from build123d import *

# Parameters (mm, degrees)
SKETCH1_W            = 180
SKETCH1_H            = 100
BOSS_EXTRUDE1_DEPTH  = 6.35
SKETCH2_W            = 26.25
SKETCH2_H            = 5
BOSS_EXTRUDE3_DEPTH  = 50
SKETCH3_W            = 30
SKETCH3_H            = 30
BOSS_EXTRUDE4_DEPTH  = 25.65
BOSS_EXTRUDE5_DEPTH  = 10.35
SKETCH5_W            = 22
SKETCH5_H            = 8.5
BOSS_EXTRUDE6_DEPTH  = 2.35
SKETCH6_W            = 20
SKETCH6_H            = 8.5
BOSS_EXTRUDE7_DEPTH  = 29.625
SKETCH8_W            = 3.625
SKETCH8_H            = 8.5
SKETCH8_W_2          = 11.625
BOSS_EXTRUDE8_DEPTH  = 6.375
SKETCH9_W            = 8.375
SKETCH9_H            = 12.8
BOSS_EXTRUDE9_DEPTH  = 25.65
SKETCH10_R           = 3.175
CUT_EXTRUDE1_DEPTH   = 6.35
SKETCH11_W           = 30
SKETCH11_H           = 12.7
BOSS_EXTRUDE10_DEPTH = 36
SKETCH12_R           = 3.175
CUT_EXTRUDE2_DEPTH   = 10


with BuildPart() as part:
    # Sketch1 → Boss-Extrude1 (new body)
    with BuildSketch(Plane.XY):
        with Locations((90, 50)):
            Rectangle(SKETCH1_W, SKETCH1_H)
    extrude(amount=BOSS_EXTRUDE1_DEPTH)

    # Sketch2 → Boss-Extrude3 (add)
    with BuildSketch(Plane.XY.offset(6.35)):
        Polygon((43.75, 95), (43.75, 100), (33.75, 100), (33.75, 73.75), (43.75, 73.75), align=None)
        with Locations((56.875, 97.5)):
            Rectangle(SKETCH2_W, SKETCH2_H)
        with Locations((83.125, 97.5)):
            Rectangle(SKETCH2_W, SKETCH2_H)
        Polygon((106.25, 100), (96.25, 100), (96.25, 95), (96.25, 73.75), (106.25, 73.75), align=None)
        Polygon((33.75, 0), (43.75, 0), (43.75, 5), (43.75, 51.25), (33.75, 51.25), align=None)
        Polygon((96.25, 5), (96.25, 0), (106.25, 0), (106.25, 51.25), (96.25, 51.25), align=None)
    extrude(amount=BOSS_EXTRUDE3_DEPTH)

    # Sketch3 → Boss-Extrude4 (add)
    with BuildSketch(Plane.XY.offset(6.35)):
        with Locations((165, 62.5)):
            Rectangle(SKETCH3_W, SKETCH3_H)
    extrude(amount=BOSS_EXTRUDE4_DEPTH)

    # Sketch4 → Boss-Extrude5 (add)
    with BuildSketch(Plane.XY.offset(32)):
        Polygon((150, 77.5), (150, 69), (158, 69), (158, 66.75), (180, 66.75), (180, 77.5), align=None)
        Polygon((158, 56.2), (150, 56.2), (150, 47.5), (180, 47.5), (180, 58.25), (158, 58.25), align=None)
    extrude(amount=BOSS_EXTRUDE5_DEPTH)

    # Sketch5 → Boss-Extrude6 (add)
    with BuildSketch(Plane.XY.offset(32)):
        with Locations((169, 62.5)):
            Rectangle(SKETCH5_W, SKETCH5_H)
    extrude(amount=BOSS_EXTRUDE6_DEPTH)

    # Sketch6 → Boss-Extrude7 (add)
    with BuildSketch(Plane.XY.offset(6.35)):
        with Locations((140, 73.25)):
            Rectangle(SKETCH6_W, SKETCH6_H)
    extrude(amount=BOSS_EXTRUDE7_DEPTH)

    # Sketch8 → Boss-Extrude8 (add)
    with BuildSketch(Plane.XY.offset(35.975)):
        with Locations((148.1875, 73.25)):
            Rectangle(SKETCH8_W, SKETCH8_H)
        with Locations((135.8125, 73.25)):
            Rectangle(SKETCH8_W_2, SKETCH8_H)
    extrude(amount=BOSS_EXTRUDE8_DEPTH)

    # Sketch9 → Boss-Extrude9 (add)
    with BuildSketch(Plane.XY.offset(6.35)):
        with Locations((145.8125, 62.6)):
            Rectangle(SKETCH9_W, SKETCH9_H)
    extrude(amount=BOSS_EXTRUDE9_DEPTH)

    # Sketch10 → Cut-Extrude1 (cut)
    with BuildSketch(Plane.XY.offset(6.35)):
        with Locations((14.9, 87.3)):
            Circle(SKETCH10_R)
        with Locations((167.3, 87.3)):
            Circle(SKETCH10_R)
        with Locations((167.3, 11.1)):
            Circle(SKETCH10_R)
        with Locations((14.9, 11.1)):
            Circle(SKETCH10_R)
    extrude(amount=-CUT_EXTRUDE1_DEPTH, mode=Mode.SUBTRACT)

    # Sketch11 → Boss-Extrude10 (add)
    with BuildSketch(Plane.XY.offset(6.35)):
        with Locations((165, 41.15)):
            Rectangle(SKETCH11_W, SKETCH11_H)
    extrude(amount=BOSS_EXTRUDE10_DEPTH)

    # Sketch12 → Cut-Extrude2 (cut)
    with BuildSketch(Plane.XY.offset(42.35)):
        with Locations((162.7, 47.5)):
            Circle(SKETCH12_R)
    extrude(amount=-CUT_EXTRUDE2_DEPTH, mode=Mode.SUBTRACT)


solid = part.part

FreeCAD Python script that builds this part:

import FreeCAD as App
import Part
import Sketcher
from FreeCAD import Vector

doc = App.newDocument("Part")
body = doc.addObject("PartDesign::Body", "Body")

sketch1 = body.newObject("Sketcher::SketchObject", "Sketch")
sketch1.AttachmentSupport = (doc.getObject("XY_Plane"), [""])
sketch1.MapMode = "FlatFace"
sketch1.addGeometry([
    Part.LineSegment(Vector(0, 100, 0), Vector(0, 0, 0)),
    Part.LineSegment(Vector(0, 0, 0), Vector(180, 0, 0)),
    Part.LineSegment(Vector(180, 0, 0), Vector(180, 100, 0)),
    Part.LineSegment(Vector(180, 100, 0), Vector(0, 100, 0)),
], False)
sketch1.addConstraint([
    Sketcher.Constraint("Coincident", 0, 2, 1, 1),
    Sketcher.Constraint("Coincident", 1, 2, 2, 1),
    Sketcher.Constraint("Coincident", 2, 2, 3, 1),
    Sketcher.Constraint("Coincident", 3, 2, 0, 1),
    Sketcher.Constraint("Vertical", 0),
    Sketcher.Constraint("Horizontal", 1),
    Sketcher.Constraint("Vertical", 2),
    Sketcher.Constraint("Horizontal", 3),
    Sketcher.Constraint("Coincident", 0, 2, -1, 1),
    Sketcher.Constraint("DistanceX", 1, 1, 1, 2, 180.0),
    Sketcher.Constraint("DistanceY", 0, 2, 0, 1, 100.0),
])
pad1 = body.newObject("PartDesign::Pad", "Pad")
pad1.Profile = sketch1
pad1.Length = 6.35

sketch2 = body.newObject("Sketcher::SketchObject", "Sketch001")
sketch2.AttachmentSupport = (doc.getObject("XY_Plane"), [""])
sketch2.MapMode = "FlatFace"
sketch2.AttachmentOffset = App.Placement(Vector(0, 0, 6.35), App.Rotation())
sketch2.addGeometry([
    Part.LineSegment(Vector(33.75, 100, 0), Vector(33.75, 73.75, 0)),
    Part.LineSegment(Vector(33.75, 73.75, 0), Vector(43.75, 73.75, 0)),
    Part.LineSegment(Vector(43.75, 73.75, 0), Vector(43.75, 95, 0)),
    Part.LineSegment(Vector(43.75, 95, 0), Vector(96.25, 95, 0)),
    Part.LineSegment(Vector(96.25, 95, 0), Vector(96.25, 73.75, 0)),
    Part.LineSegment(Vector(96.25, 73.75, 0), Vector(106.25, 73.75, 0)),
    Part.LineSegment(Vector(106.25, 73.75, 0), Vector(106.25, 100, 0)),
    Part.LineSegment(Vector(106.25, 100, 0), Vector(33.75, 100, 0)),
    Part.LineSegment(Vector(33.75, 0, 0), Vector(43.75, 0, 0)),
    Part.LineSegment(Vector(43.75, 0, 0), Vector(43.75, 51.25, 0)),
    Part.LineSegment(Vector(43.75, 51.25, 0), Vector(33.75, 51.25, 0)),
    Part.LineSegment(Vector(33.75, 51.25, 0), Vector(33.75, 0, 0)),
    Part.LineSegment(Vector(96.25, 0, 0), Vector(106.25, 0, 0)),
    Part.LineSegment(Vector(106.25, 0, 0), Vector(106.25, 51.25, 0)),
    Part.LineSegment(Vector(106.25, 51.25, 0), Vector(96.25, 51.25, 0)),
    Part.LineSegment(Vector(96.25, 51.25, 0), Vector(96.25, 0, 0)),
], False)
sketch2.addConstraint([
    Sketcher.Constraint("Coincident", 0, 2, 1, 1),
    Sketcher.Constraint("Coincident", 1, 2, 2, 1),
    Sketcher.Constraint("Coincident", 2, 2, 3, 1),
    Sketcher.Constraint("Coincident", 3, 2, 4, 1),
    Sketcher.Constraint("Coincident", 4, 2, 5, 1),
    Sketcher.Constraint("Coincident", 5, 2, 6, 1),
    Sketcher.Constraint("Coincident", 6, 2, 7, 1),
    Sketcher.Constraint("Coincident", 7, 2, 0, 1),
    Sketcher.Constraint("Coincident", 8, 2, 9, 1),
    Sketcher.Constraint("Coincident", 9, 2, 10, 1),
    Sketcher.Constraint("Coincident", 10, 2, 11, 1),
    Sketcher.Constraint("Coincident", 11, 2, 8, 1),
    Sketcher.Constraint("Coincident", 12, 2, 13, 1),
    Sketcher.Constraint("Coincident", 13, 2, 14, 1),
    Sketcher.Constraint("Coincident", 14, 2, 15, 1),
    Sketcher.Constraint("Coincident", 15, 2, 12, 1),
    Sketcher.Constraint("Vertical", 0),
    Sketcher.Constraint("Horizontal", 1),
    Sketcher.Constraint("Vertical", 2),
    Sketcher.Constraint("Horizontal", 3),
    Sketcher.Constraint("Vertical", 4),
    Sketcher.Constraint("Horizontal", 5),
    Sketcher.Constraint("Vertical", 6),
    Sketcher.Constraint("Horizontal", 7),
    Sketcher.Constraint("Horizontal", 8),
    Sketcher.Constraint("Vertical", 9),
    Sketcher.Constraint("Horizontal", 10),
    Sketcher.Constraint("Vertical", 11),
    Sketcher.Constraint("Horizontal", 12),
    Sketcher.Constraint("Vertical", 13),
    Sketcher.Constraint("Horizontal", 14),
    Sketcher.Constraint("Vertical", 15),
    Sketcher.Constraint("PointOnObject", 8, 2, -1),
    Sketcher.Constraint("PointOnObject", 12, 2, -1),
    Sketcher.Constraint("Horizontal", 1, 2, 4, 2),
    Sketcher.Constraint("Horizontal", 10, 2, 13, 2),
    Sketcher.Constraint("Vertical", 2, 2, 8, 2),
    Sketcher.Constraint("Vertical", 7, 2, 10, 2),
    Sketcher.Constraint("Vertical", 6, 2, 12, 2),
    Sketcher.Constraint("Vertical", 4, 2, 14, 2),
    Sketcher.Constraint("Equal", 1, 5),
    Sketcher.Constraint("DistanceX", 1, 1, 1, 2, 10.0),
    Sketcher.Constraint("DistanceX", 3, 1, 3, 2, 52.5),
    Sketcher.Constraint("DistanceY", -1, 1, 2, 2, 95.0),
    Sketcher.Constraint("DistanceY", -1, 1, 6, 2, 100.0),
    Sketcher.Constraint("DistanceY", 0, 2, 0, 1, 26.25),
    Sketcher.Constraint("DistanceY", 9, 1, 9, 2, 51.25),
    Sketcher.Constraint("DistanceX", -1, 1, 0, 2, 33.75),
])
pad2 = body.newObject("PartDesign::Pad", "Pad001")
pad2.Profile = sketch2
pad2.Length = 50

sketch3 = body.newObject("Sketcher::SketchObject", "Sketch002")
sketch3.AttachmentSupport = (doc.getObject("XY_Plane"), [""])
sketch3.MapMode = "FlatFace"
sketch3.AttachmentOffset = App.Placement(Vector(0, 0, 6.35), App.Rotation())
sketch3.addGeometry([
    Part.LineSegment(Vector(150, 77.5, 0), Vector(150, 47.5, 0)),
    Part.LineSegment(Vector(150, 47.5, 0), Vector(180, 47.5, 0)),
    Part.LineSegment(Vector(180, 47.5, 0), Vector(180, 77.5, 0)),
    Part.LineSegment(Vector(180, 77.5, 0), Vector(150, 77.5, 0)),
], False)
sketch3.addConstraint([
    Sketcher.Constraint("Coincident", 0, 2, 1, 1),
    Sketcher.Constraint("Coincident", 1, 2, 2, 1),
    Sketcher.Constraint("Coincident", 2, 2, 3, 1),
    Sketcher.Constraint("Coincident", 3, 2, 0, 1),
    Sketcher.Constraint("Vertical", 0),
    Sketcher.Constraint("Horizontal", 1),
    Sketcher.Constraint("Vertical", 2),
    Sketcher.Constraint("Horizontal", 3),
    Sketcher.Constraint("Equal", 3, 0),
    Sketcher.Constraint("DistanceX", 1, 1, 1, 2, 30.0),
    Sketcher.Constraint("DistanceX", -1, 1, 0, 2, 150.0),
    Sketcher.Constraint("DistanceY", -1, 1, 0, 2, 47.5),
])
pad3 = body.newObject("PartDesign::Pad", "Pad002")
pad3.Profile = sketch3
pad3.Length = 25.65

sketch4 = body.newObject("Sketcher::SketchObject", "Sketch003")
sketch4.AttachmentSupport = (doc.getObject("XY_Plane"), [""])
sketch4.MapMode = "FlatFace"
sketch4.AttachmentOffset = App.Placement(Vector(0, 0, 32), App.Rotation())
sketch4.addGeometry([
    Part.LineSegment(Vector(150, 77.5, 0), Vector(150, 69, 0)),
    Part.LineSegment(Vector(150, 69, 0), Vector(158, 69, 0)),
    Part.LineSegment(Vector(158, 69, 0), Vector(158, 66.75, 0)),
    Part.LineSegment(Vector(158, 66.75, 0), Vector(180, 66.75, 0)),
    Part.LineSegment(Vector(180, 66.75, 0), Vector(180, 77.5, 0)),
    Part.LineSegment(Vector(180, 77.5, 0), Vector(150, 77.5, 0)),
    Part.LineSegment(Vector(158, 56.2, 0), Vector(150, 56.2, 0)),
    Part.LineSegment(Vector(150, 56.2, 0), Vector(150, 47.5, 0)),
    Part.LineSegment(Vector(150, 47.5, 0), Vector(180, 47.5, 0)),
    Part.LineSegment(Vector(180, 47.5, 0), Vector(180, 58.25, 0)),
    Part.LineSegment(Vector(180, 58.25, 0), Vector(158, 58.25, 0)),
    Part.LineSegment(Vector(158, 58.25, 0), Vector(158, 56.2, 0)),
], False)
sketch4.addConstraint([
    Sketcher.Constraint("Coincident", 0, 2, 1, 1),
    Sketcher.Constraint("Coincident", 1, 2, 2, 1),
    Sketcher.Constraint("Coincident", 2, 2, 3, 1),
    Sketcher.Constraint("Coincident", 3, 2, 4, 1),
    Sketcher.Constraint("Coincident", 4, 2, 5, 1),
    Sketcher.Constraint("Coincident", 5, 2, 0, 1),
    Sketcher.Constraint("Coincident", 6, 2, 7, 1),
    Sketcher.Constraint("Coincident", 7, 2, 8, 1),
    Sketcher.Constraint("Coincident", 8, 2, 9, 1),
    Sketcher.Constraint("Coincident", 9, 2, 10, 1),
    Sketcher.Constraint("Coincident", 10, 2, 11, 1),
    Sketcher.Constraint("Coincident", 11, 2, 6, 1),
    Sketcher.Constraint("Vertical", 0),
    Sketcher.Constraint("Horizontal", 1),
    Sketcher.Constraint("Vertical", 2),
    Sketcher.Constraint("Horizontal", 3),
    Sketcher.Constraint("Vertical", 4),
    Sketcher.Constraint("Horizontal", 5),
    Sketcher.Constraint("Horizontal", 6),
    Sketcher.Constraint("Vertical", 7),
    Sketcher.Constraint("Horizontal", 8),
    Sketcher.Constraint("Vertical", 9),
    Sketcher.Constraint("Horizontal", 10),
    Sketcher.Constraint("Vertical", 11),
    Sketcher.Constraint("Vertical", 5, 2, 6, 2),
    Sketcher.Constraint("Vertical", 4, 2, 8, 2),
    Sketcher.Constraint("Vertical", 2, 2, 10, 2),
    Sketcher.Constraint("Equal", 4, 9),
    Sketcher.Constraint("DistanceX", 1, 1, 1, 2, 8.0),
    Sketcher.Constraint("DistanceX", 3, 1, 3, 2, 22.0),
    Sketcher.Constraint("DistanceY", 0, 2, 0, 1, 8.5),
    Sketcher.Constraint("DistanceY", 7, 2, 7, 1, 8.7),
    Sketcher.Constraint("DistanceX", -1, 1, 0, 2, 150.0),
    Sketcher.Constraint("DistanceY", -1, 1, 0, 2, 69.0),
    Sketcher.Constraint("DistanceY", 7, 2, 5, 2, 30.0),
    Sketcher.Constraint("DistanceY", 2, 2, 2, 1, 2.25),
])
pad4 = body.newObject("PartDesign::Pad", "Pad003")
pad4.Profile = sketch4
pad4.Length = 10.35

sketch5 = body.newObject("Sketcher::SketchObject", "Sketch004")
sketch5.AttachmentSupport = (doc.getObject("XY_Plane"), [""])
sketch5.MapMode = "FlatFace"
sketch5.AttachmentOffset = App.Placement(Vector(0, 0, 32), App.Rotation())
sketch5.addGeometry([
    Part.LineSegment(Vector(158, 66.75, 0), Vector(158, 58.25, 0)),
    Part.LineSegment(Vector(158, 58.25, 0), Vector(180, 58.25, 0)),
    Part.LineSegment(Vector(180, 58.25, 0), Vector(180, 66.75, 0)),
    Part.LineSegment(Vector(180, 66.75, 0), Vector(158, 66.75, 0)),
], False)
sketch5.addConstraint([
    Sketcher.Constraint("Coincident", 0, 2, 1, 1),
    Sketcher.Constraint("Coincident", 1, 2, 2, 1),
    Sketcher.Constraint("Coincident", 2, 2, 3, 1),
    Sketcher.Constraint("Coincident", 3, 2, 0, 1),
    Sketcher.Constraint("Vertical", 0),
    Sketcher.Constraint("Horizontal", 1),
    Sketcher.Constraint("Vertical", 2),
    Sketcher.Constraint("Horizontal", 3),
    Sketcher.Constraint("DistanceX", 1, 1, 1, 2, 22.0),
    Sketcher.Constraint("DistanceY", 0, 2, 0, 1, 8.5),
    Sketcher.Constraint("DistanceX", -1, 1, 0, 2, 158.0),
    Sketcher.Constraint("DistanceY", -1, 1, 0, 2, 58.25),
])
pad5 = body.newObject("PartDesign::Pad", "Pad004")
pad5.Profile = sketch5
pad5.Length = 2.35

sketch6 = body.newObject("Sketcher::SketchObject", "Sketch005")
sketch6.AttachmentSupport = (doc.getObject("XY_Plane"), [""])
sketch6.MapMode = "FlatFace"
sketch6.AttachmentOffset = App.Placement(Vector(0, 0, 6.35), App.Rotation())
sketch6.addGeometry([
    Part.LineSegment(Vector(130, 77.5, 0), Vector(130, 69, 0)),
    Part.LineSegment(Vector(130, 69, 0), Vector(150, 69, 0)),
    Part.LineSegment(Vector(150, 69, 0), Vector(150, 77.5, 0)),
    Part.LineSegment(Vector(150, 77.5, 0), Vector(130, 77.5, 0)),
], False)
sketch6.addConstraint([
    Sketcher.Constraint("Coincident", 0, 2, 1, 1),
    Sketcher.Constraint("Coincident", 1, 2, 2, 1),
    Sketcher.Constraint("Coincident", 2, 2, 3, 1),
    Sketcher.Constraint("Coincident", 3, 2, 0, 1),
    Sketcher.Constraint("Vertical", 0),
    Sketcher.Constraint("Horizontal", 1),
    Sketcher.Constraint("Vertical", 2),
    Sketcher.Constraint("Horizontal", 3),
    Sketcher.Constraint("DistanceX", 1, 1, 1, 2, 20.0),
    Sketcher.Constraint("DistanceY", 0, 2, 0, 1, 8.5),
    Sketcher.Constraint("DistanceX", -1, 1, 0, 2, 130.0),
    Sketcher.Constraint("DistanceY", -1, 1, 0, 2, 69.0),
])
pad6 = body.newObject("PartDesign::Pad", "Pad005")
pad6.Profile = sketch6
pad6.Length = 29.625

sketch7 = body.newObject("Sketcher::SketchObject", "Sketch006")
sketch7.AttachmentSupport = (doc.getObject("XY_Plane"), [""])
sketch7.MapMode = "FlatFace"
sketch7.AttachmentOffset = App.Placement(Vector(0, 0, 35.975), App.Rotation())
sketch7.addGeometry([
    Part.LineSegment(Vector(146.375, 77.5, 0), Vector(146.375, 69, 0)),
    Part.LineSegment(Vector(146.375, 69, 0), Vector(150, 69, 0)),
    Part.LineSegment(Vector(150, 69, 0), Vector(150, 77.5, 0)),
    Part.LineSegment(Vector(150, 77.5, 0), Vector(146.375, 77.5, 0)),
    Part.LineSegment(Vector(130, 77.5, 0), Vector(130, 69, 0)),
    Part.LineSegment(Vector(130, 69, 0), Vector(141.625, 69, 0)),
    Part.LineSegment(Vector(141.625, 69, 0), Vector(141.625, 77.5, 0)),
    Part.LineSegment(Vector(141.625, 77.5, 0), Vector(130, 77.5, 0)),
], False)
sketch7.addConstraint([
    Sketcher.Constraint("Coincident", 0, 2, 1, 1),
    Sketcher.Constraint("Coincident", 1, 2, 2, 1),
    Sketcher.Constraint("Coincident", 2, 2, 3, 1),
    Sketcher.Constraint("Coincident", 3, 2, 0, 1),
    Sketcher.Constraint("Coincident", 4, 2, 5, 1),
    Sketcher.Constraint("Coincident", 5, 2, 6, 1),
    Sketcher.Constraint("Coincident", 6, 2, 7, 1),
    Sketcher.Constraint("Coincident", 7, 2, 4, 1),
    Sketcher.Constraint("Vertical", 0),
    Sketcher.Constraint("Horizontal", 1),
    Sketcher.Constraint("Vertical", 2),
    Sketcher.Constraint("Horizontal", 3),
    Sketcher.Constraint("Vertical", 4),
    Sketcher.Constraint("Horizontal", 5),
    Sketcher.Constraint("Vertical", 6),
    Sketcher.Constraint("Horizontal", 7),
    Sketcher.Constraint("Horizontal", 1, 2, 4, 2),
    Sketcher.Constraint("Horizontal", 3, 2, 6, 2),
    Sketcher.Constraint("DistanceY", 0, 2, 0, 1, 8.5),
    Sketcher.Constraint("DistanceY", -1, 1, 0, 2, 69.0),
    Sketcher.Constraint("DistanceX", -1, 1, 1, 2, 150.0),
    Sketcher.Constraint("DistanceX", -1, 1, 4, 2, 130.0),
    Sketcher.Constraint("DistanceX", 1, 1, 1, 2, 3.625),
    Sketcher.Constraint("DistanceX", 5, 1, 5, 2, 11.625),
])
pad7 = body.newObject("PartDesign::Pad", "Pad006")
pad7.Profile = sketch7
pad7.Length = 6.375

sketch8 = body.newObject("Sketcher::SketchObject", "Sketch007")
sketch8.AttachmentSupport = (doc.getObject("XY_Plane"), [""])
sketch8.MapMode = "FlatFace"
sketch8.AttachmentOffset = App.Placement(Vector(0, 0, 6.35), App.Rotation())
sketch8.addGeometry([
    Part.LineSegment(Vector(141.625, 69, 0), Vector(141.625, 56.2, 0)),
    Part.LineSegment(Vector(141.625, 56.2, 0), Vector(150, 56.2, 0)),
    Part.LineSegment(Vector(150, 56.2, 0), Vector(150, 69, 0)),
    Part.LineSegment(Vector(150, 69, 0), Vector(141.625, 69, 0)),
], False)
sketch8.addConstraint([
    Sketcher.Constraint("Coincident", 0, 2, 1, 1),
    Sketcher.Constraint("Coincident", 1, 2, 2, 1),
    Sketcher.Constraint("Coincident", 2, 2, 3, 1),
    Sketcher.Constraint("Coincident", 3, 2, 0, 1),
    Sketcher.Constraint("Vertical", 0),
    Sketcher.Constraint("Horizontal", 1),
    Sketcher.Constraint("Vertical", 2),
    Sketcher.Constraint("Horizontal", 3),
    Sketcher.Constraint("DistanceY", 0, 2, 0, 1, 12.8),
    Sketcher.Constraint("DistanceX", -1, 1, 1, 2, 150.0),
    Sketcher.Constraint("DistanceY", -1, 1, 2, 2, 69.0),
    Sketcher.Constraint("DistanceX", 1, 1, 1, 2, 8.375),
])
pad8 = body.newObject("PartDesign::Pad", "Pad007")
pad8.Profile = sketch8
pad8.Length = 25.65

sketch9 = body.newObject("Sketcher::SketchObject", "Sketch008")
sketch9.AttachmentSupport = (doc.getObject("XY_Plane"), [""])
sketch9.MapMode = "FlatFace"
sketch9.AttachmentOffset = App.Placement(Vector(0, 0, 6.35), App.Rotation())
sketch9.addGeometry([
    Part.Circle(Vector(14.9, 87.3, 0), Vector(0, 0, 1), 3.175),
    Part.Circle(Vector(167.3, 87.3, 0), Vector(0, 0, 1), 3.175),
    Part.Circle(Vector(167.3, 11.1, 0), Vector(0, 0, 1), 3.175),
    Part.Circle(Vector(14.9, 11.1, 0), Vector(0, 0, 1), 3.175),
], False)
sketch9.addConstraint([
    Sketcher.Constraint("Equal", 0, 1),
    Sketcher.Constraint("Equal", 1, 2),
    Sketcher.Constraint("Equal", 2, 3),
    Sketcher.Constraint("Horizontal", 0, 3, 1, 3),
    Sketcher.Constraint("Horizontal", 2, 3, 3, 3),
    Sketcher.Constraint("Vertical", 1, 3, 2, 3),
    Sketcher.Constraint("Vertical", 0, 3, 3, 3),
    Sketcher.Constraint("Diameter", 0, 6.35),
    Sketcher.Constraint("DistanceX", -1, 1, 0, 3, 14.9),
    Sketcher.Constraint("DistanceY", -1, 1, 0, 3, 87.3),
    Sketcher.Constraint("DistanceX", -1, 1, 1, 3, 167.3),
    Sketcher.Constraint("DistanceY", -1, 1, 2, 3, 11.1),
])
pocket1 = body.newObject("PartDesign::Pocket", "Pocket")
pocket1.Profile = sketch9
pocket1.Length = 6.35

sketch10 = body.newObject("Sketcher::SketchObject", "Sketch009")
sketch10.AttachmentSupport = (doc.getObject("XY_Plane"), [""])
sketch10.MapMode = "FlatFace"
sketch10.AttachmentOffset = App.Placement(Vector(0, 0, 6.35), App.Rotation())
sketch10.addGeometry([
    Part.LineSegment(Vector(150, 47.5, 0), Vector(150, 34.8, 0)),
    Part.LineSegment(Vector(150, 34.8, 0), Vector(180, 34.8, 0)),
    Part.LineSegment(Vector(180, 34.8, 0), Vector(180, 47.5, 0)),
    Part.LineSegment(Vector(180, 47.5, 0), Vector(150, 47.5, 0)),
], False)
sketch10.addConstraint([
    Sketcher.Constraint("Coincident", 0, 2, 1, 1),
    Sketcher.Constraint("Coincident", 1, 2, 2, 1),
    Sketcher.Constraint("Coincident", 2, 2, 3, 1),
    Sketcher.Constraint("Coincident", 3, 2, 0, 1),
    Sketcher.Constraint("Vertical", 0),
    Sketcher.Constraint("Horizontal", 1),
    Sketcher.Constraint("Vertical", 2),
    Sketcher.Constraint("Horizontal", 3),
    Sketcher.Constraint("DistanceX", 1, 1, 1, 2, 30.0),
    Sketcher.Constraint("DistanceY", 0, 2, 0, 1, 12.7),
    Sketcher.Constraint("DistanceX", -1, 1, 0, 2, 150.0),
    Sketcher.Constraint("DistanceY", -1, 1, 0, 2, 34.8),
])
pad9 = body.newObject("PartDesign::Pad", "Pad008")
pad9.Profile = sketch10
pad9.Length = 36

sketch11 = body.newObject("Sketcher::SketchObject", "Sketch010")
sketch11.AttachmentSupport = (doc.getObject("XY_Plane"), [""])
sketch11.MapMode = "FlatFace"
sketch11.AttachmentOffset = App.Placement(Vector(0, 0, 42.35), App.Rotation())
sketch11.addGeometry(Part.Circle(Vector(162.7, 47.5, 0), Vector(0, 0, 1), 3.175), False)
sketch11.addConstraint([
    Sketcher.Constraint("Diameter", 0, 6.35),
    Sketcher.Constraint("DistanceX", -1, 1, 0, 3, 162.7),
    Sketcher.Constraint("DistanceY", -1, 1, 0, 3, 47.5),
])
pocket2 = body.newObject("PartDesign::Pocket", "Pocket001")
pocket2.Profile = sketch11
pocket2.Length = 10

doc.recompute()
